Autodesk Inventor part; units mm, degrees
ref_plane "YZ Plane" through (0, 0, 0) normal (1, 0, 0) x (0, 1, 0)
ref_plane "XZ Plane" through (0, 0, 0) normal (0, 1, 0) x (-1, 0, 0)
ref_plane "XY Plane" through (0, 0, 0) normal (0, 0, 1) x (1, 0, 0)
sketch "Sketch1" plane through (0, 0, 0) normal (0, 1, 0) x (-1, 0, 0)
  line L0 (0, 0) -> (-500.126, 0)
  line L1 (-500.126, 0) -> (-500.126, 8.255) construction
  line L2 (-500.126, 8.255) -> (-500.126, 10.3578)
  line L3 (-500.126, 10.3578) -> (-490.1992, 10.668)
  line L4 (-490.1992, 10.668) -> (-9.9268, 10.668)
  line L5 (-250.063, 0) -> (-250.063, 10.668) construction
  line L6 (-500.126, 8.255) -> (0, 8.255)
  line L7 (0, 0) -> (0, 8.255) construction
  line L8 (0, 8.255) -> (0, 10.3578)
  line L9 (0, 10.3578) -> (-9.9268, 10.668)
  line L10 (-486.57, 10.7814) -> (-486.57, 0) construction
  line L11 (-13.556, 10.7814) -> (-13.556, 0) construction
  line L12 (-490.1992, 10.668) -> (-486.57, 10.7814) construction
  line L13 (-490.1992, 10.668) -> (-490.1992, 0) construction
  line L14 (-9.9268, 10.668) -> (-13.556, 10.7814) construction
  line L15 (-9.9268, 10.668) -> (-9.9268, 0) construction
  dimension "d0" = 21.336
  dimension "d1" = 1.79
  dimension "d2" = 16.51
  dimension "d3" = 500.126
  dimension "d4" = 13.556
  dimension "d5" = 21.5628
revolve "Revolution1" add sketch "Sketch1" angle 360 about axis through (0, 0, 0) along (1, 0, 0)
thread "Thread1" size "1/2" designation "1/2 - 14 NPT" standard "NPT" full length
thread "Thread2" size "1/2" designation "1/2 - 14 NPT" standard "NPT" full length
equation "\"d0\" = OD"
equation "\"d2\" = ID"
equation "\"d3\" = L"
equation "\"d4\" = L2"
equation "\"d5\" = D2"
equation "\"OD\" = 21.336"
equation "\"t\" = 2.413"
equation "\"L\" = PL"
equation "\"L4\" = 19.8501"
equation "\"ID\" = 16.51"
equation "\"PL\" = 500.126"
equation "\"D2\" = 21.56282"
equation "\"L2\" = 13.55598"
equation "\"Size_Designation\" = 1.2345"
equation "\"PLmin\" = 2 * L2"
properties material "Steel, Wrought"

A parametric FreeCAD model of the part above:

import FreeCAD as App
import Part
import Sketcher
Q = App.Units.Quantity

doc = App.newDocument("Part")
body = doc.addObject("PartDesign::Body", "Body")

# Sketch on XZ plane
sketch1 = body.newObject("Sketcher::SketchObject", "Sketch")
sketch1.AttachmentSupport = (doc.getObject("XZ_Plane"), [""])
sketch1.MapMode = "FlatFace"
sketch1.addGeometry(Part.LineSegment(App.Vector(500.1, 10.4, 0), App.Vector(500.1, 8.3, 0)), False)
sketch1.addGeometry(Part.LineSegment(App.Vector(500.1, 8.3, 0), App.Vector(0, 8.3, 0)), False)
sketch1.addGeometry(Part.LineSegment(App.Vector(0, 8.3, 0), App.Vector(0, 10.4, 0)), False)
sketch1.addGeometry(Part.LineSegment(App.Vector(0, 10.4, 0), App.Vector(9.9, 10.7, 0)), False)
sketch1.addGeometry(Part.LineSegment(App.Vector(9.9, 10.7, 0), App.Vector(490.2, 10.7, 0)), False)
sketch1.addGeometry(Part.LineSegment(App.Vector(490.2, 10.7, 0), App.Vector(500.1, 10.4, 0)), False)
sketch1.addConstraint(Sketcher.Constraint("Coincident", 0, 2, 1, 1))
sketch1.addConstraint(Sketcher.Constraint("Coincident", 1, 2, 2, 1))
sketch1.addConstraint(Sketcher.Constraint("Coincident", 2, 2, 3, 1))
sketch1.addConstraint(Sketcher.Constraint("Coincident", 3, 2, 4, 1))
sketch1.addConstraint(Sketcher.Constraint("Coincident", 4, 2, 5, 1))
sketch1.addConstraint(Sketcher.Constraint("Coincident", 5, 2, 0, 1))
sketch1.addConstraint(Sketcher.Constraint("Vertical", 0))
sketch1.addConstraint(Sketcher.Constraint("Horizontal", 1))
sketch1.addConstraint(Sketcher.Constraint("Vertical", 2))
sketch1.addConstraint(Sketcher.Constraint("Horizontal", 4))
sketch1.addConstraint(Sketcher.Constraint("PointOnObject", 1, 2, -2))
sketch1.addConstraint(Sketcher.Constraint("Horizontal", 2, 2, 5, 2))
sketch1.addConstraint(Sketcher.Constraint("Equal", 3, 5))
sketch1.addConstraint(Sketcher.Constraint("DistanceX", 1, 2, 1, 1, Q("19.69 in")))
sketch1.addConstraint(Sketcher.Constraint("Angle", 3, Q("1.7898 deg")))
sketch1.addConstraint(Sketcher.Constraint("DistanceY", -1, 1, 3, 2, Q("0.42 in")))
sketch1.addConstraint(Sketcher.Constraint("Distance", 3, Q("0.391 in")))
sketch1.addConstraint(Sketcher.Constraint("DistanceY", -1, 1, 0, 2, Q("0.325 in")))
revolution = body.newObject("PartDesign::Revolution", "Revolution")
revolution.Profile = sketch1
revolution.ReferenceAxis = (sketch1, ["H_Axis"])
revolution.Angle = 360

doc.recompute()
